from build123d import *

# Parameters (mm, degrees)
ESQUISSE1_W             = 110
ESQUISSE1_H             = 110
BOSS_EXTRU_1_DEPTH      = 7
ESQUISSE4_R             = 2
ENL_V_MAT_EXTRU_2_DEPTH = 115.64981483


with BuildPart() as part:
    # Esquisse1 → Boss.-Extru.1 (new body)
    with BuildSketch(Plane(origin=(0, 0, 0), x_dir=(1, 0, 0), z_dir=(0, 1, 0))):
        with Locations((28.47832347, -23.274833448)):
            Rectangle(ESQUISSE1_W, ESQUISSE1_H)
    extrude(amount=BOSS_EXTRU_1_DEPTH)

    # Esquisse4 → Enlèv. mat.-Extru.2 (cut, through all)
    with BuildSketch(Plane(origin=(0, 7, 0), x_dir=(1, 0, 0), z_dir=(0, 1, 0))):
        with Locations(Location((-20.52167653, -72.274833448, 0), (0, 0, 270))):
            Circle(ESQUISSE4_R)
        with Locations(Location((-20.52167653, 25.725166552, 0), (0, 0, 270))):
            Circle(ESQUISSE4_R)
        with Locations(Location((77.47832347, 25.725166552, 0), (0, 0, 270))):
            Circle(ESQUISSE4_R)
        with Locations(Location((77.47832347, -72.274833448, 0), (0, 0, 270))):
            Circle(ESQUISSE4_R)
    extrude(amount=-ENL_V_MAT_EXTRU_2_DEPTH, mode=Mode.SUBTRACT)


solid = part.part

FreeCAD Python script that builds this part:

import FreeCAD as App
import Part
import Sketcher

V = App.Vector


def add_polygon(sketch, points):
    """Adds a closed chain of lines whose ends are joined by coincident constraints."""
    first, n = sketch.GeometryCount, len(points)
    for a, b in zip(points, points[1:] + points[:1]):
        sketch.addGeometry(Part.LineSegment(App.Vector(*a, 0), App.Vector(*b, 0)), False)
    for i in range(n):
        sketch.addConstraint(Sketcher.Constraint("Coincident", first + i, 2, first + (i + 1) % n, 1))

doc = App.newDocument("Part")
body = doc.addObject("PartDesign::Body", "Body")

# Sketch on XZ plane
sketch1 = body.newObject("Sketcher::SketchObject", "Sketch")
sketch1.AttachmentSupport = (doc.getObject("XZ_Plane"), [""])
sketch1.MapMode = "FlatFace"
add_polygon(sketch1, [(-27, -32), (-27, 78), (83, 78), (83, -32)])  # lines 0-3
sketch1.addConstraint(Sketcher.Constraint("Vertical", 0))
sketch1.addConstraint(Sketcher.Constraint("Horizontal", 1))
sketch1.addConstraint(Sketcher.Constraint("Vertical", 2))
sketch1.addConstraint(Sketcher.Constraint("Horizontal", 3))
sketch1.addConstraint(Sketcher.Constraint("Equal", 3, 0))
sketch1.addConstraint(Sketcher.Constraint("DistanceX", 1, 1, 1, 2, 110.0))
sketch1.addConstraint(Sketcher.Constraint("DistanceX", 0, 2, -1, 1, 26.521677))
sketch1.addConstraint(Sketcher.Constraint("DistanceY", -1, 1, 0, 2, 78.274833))
pad1 = body.newObject("PartDesign::Pad", "Pad")
pad1.Profile = sketch1
pad1.Length = 7
pad1.Reversed = True

# Sketch on XZ plane
sketch2 = body.newObject("Sketcher::SketchObject", "Sketch001")
sketch2.AttachmentSupport = (doc.getObject("XZ_Plane"), [""])
sketch2.MapMode = "FlatFace"
sketch2.AttachmentOffset = App.Placement(V(0, 0, -7), App.Rotation())
sketch2.addGeometry(Part.Circle(V(-20.5, 72.3, 0), V(0, 0, 1), 2), False)
sketch2.addGeometry(Part.Circle(V(-20.5, -25.7, 0), V(0, 0, 1), 2), False)
sketch2.addGeometry(Part.Circle(V(77.5, -25.7, 0), V(0, 0, 1), 2), False)
sketch2.addGeometry(Part.Circle(V(77.5, 72.3, 0), V(0, 0, 1), 2), False)
sketch2.addConstraint(Sketcher.Constraint("Equal", 0, 1))
sketch2.addConstraint(Sketcher.Constraint("Equal", 1, 2))
sketch2.addConstraint(Sketcher.Constraint("Equal", 2, 3))
sketch2.addConstraint(Sketcher.Constraint("Horizontal", 1, 3, 2, 3))
sketch2.addConstraint(Sketcher.Constraint("Horizontal", 0, 3, 3, 3))
sketch2.addConstraint(Sketcher.Constraint("Vertical", 0, 3, 1, 3))
sketch2.addConstraint(Sketcher.Constraint("Vertical", 2, 3, 3, 3))
sketch2.addConstraint(Sketcher.Constraint("Diameter", 0, 4.0))
sketch2.addConstraint(Sketcher.Constraint("DistanceY", 1, 3, 0, 3, 98.0))
sketch2.addConstraint(Sketcher.Constraint("DistanceX", 1, 3, 2, 3, 98.0))
sketch2.addConstraint(Sketcher.Constraint("DistanceX", 0, 3, -1, 1, 20.521677))
sketch2.addConstraint(Sketcher.Constraint("DistanceY", -1, 1, 0, 3, 72.274833))
pocket1 = body.newObject("PartDesign::Pocket", "Pocket")
pocket1.Profile = sketch2
pocket1.Type = "ThroughAll"
pocket1.Reversed = True

doc.recompute()
